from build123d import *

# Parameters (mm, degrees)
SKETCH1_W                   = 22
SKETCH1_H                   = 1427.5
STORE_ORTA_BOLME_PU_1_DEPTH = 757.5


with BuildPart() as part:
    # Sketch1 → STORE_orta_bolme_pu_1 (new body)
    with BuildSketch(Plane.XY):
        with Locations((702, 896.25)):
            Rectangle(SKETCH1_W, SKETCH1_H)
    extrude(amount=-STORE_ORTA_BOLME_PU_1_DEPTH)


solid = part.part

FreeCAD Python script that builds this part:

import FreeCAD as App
import Part
import Sketcher
from FreeCAD import Vector
Q = App.Units.Quantity

doc = App.newDocument("Part")
params = doc.addObject("Spreadsheet::Sheet", "Params")
for row, (alias, value) in enumerate([
    ("sketch1_width", "22 mm"),
    ("sketch1_height", "1427.5 mm"),
    ("pad1_length", "757.5 mm"),
], start=1):
    params.set(f"A{row}", alias)
    params.set(f"B{row}", "=" + value)
    params.setAlias(f"B{row}", alias)

body = doc.addObject("PartDesign::Body", "Body")

# Sketch on XY plane
sketch1 = body.newObject("Sketcher::SketchObject", "Sketch")
sketch1.AttachmentSupport = (doc.getObject("XY_Plane"), [""])
sketch1.MapMode = "FlatFace"
sketch1.addGeometry([
    Part.LineSegment(Vector(691, 1610, 0), Vector(691, 182, 0)),
    Part.LineSegment(Vector(691, 182, 0), Vector(713, 182, 0)),
    Part.LineSegment(Vector(713, 182, 0), Vector(713, 1610, 0)),
    Part.LineSegment(Vector(713, 1610, 0), Vector(691, 1610, 0)),
], False)
sketch1.addConstraint([
    Sketcher.Constraint("Coincident", 0, 2, 1, 1),
    Sketcher.Constraint("Coincident", 1, 2, 2, 1),
    Sketcher.Constraint("Coincident", 2, 2, 3, 1),
    Sketcher.Constraint("Coincident", 3, 2, 0, 1),
    Sketcher.Constraint("Vertical", 0),
    Sketcher.Constraint("Horizontal", 1),
    Sketcher.Constraint("Vertical", 2),
    Sketcher.Constraint("Horizontal", 3),
    Sketcher.Constraint("DistanceX", 1, 1, 1, 2, Q("22 mm")),
    Sketcher.Constraint("DistanceY", 0, 2, 0, 1, Q("1427.5 mm")),
    Sketcher.Constraint("DistanceX", -1, 1, 0, 2, Q("691 mm")),
    Sketcher.Constraint("DistanceY", -1, 1, 2, 2, Q("1610 mm")),
])
sketch1.setExpression("Constraints[8]", "Params.sketch1_width")
sketch1.setExpression("Constraints[9]", "Params.sketch1_height")
pad1 = body.newObject("PartDesign::Pad", "Pad")
pad1.Profile = sketch1
pad1.setExpression("Length", "Params.pad1_length")
pad1.Reversed = True

doc.recompute()
